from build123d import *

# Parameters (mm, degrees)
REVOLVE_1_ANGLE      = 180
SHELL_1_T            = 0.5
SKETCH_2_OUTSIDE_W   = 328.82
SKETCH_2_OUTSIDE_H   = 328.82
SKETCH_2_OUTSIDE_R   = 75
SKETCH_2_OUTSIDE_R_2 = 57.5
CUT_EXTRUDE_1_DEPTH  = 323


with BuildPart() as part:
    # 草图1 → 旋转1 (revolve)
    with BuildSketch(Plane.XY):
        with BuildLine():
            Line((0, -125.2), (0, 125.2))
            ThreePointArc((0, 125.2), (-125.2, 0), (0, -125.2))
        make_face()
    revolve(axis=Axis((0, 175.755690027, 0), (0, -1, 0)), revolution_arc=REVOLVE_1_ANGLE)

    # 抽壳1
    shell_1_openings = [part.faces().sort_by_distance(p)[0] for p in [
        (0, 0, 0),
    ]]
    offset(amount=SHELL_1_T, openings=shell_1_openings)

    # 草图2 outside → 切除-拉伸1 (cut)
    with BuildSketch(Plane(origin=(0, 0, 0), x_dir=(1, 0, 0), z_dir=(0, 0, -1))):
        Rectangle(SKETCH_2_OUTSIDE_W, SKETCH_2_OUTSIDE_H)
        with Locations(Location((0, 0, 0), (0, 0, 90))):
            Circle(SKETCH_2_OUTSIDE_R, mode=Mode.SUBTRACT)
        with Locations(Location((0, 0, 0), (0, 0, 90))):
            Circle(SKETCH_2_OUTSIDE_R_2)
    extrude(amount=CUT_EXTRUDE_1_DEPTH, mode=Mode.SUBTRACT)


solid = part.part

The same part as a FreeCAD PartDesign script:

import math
import FreeCAD as App
import Part
import Sketcher
from FreeCAD import Vector


def faces_at(feature, points):
    """Names of the faces that lie closest to the given points."""
    faces = feature.Shape.Faces
    near = lambda p: min(range(len(faces)), key=lambda i: faces[i].distToShape(Part.Vertex(*p))[0])
    return sorted({f"Face{near(p) + 1}" for p in points})

doc = App.newDocument("Part")
body = doc.addObject("PartDesign::Body", "Body")

# Sketch on XY plane
sketch1 = body.newObject("Sketcher::SketchObject", "Sketch")
sketch1.AttachmentSupport = (doc.getObject("XY_Plane"), [""])
sketch1.MapMode = "FlatFace"
sketch1.addGeometry([
    Part.LineSegment(Vector(0, -125, 0), Vector(0, 125, 0)),
    Part.ArcOfCircle(Part.Circle(Vector(0, 0, 0), Vector(0, 0, 1), 125), math.radians(90), math.radians(270)),
], False)
sketch1.addConstraint([
    Sketcher.Constraint("Coincident", 0, 1, 1, 2),
    Sketcher.Constraint("Coincident", 1, 1, 0, 2),
    Sketcher.Constraint("Vertical", 0),
    Sketcher.Constraint("Coincident", 1, 3, -1, 1),
    Sketcher.Constraint("PointOnObject", 0, 1, -2),
    Sketcher.Constraint("Radius", 1, 125.2),
])
revolution = body.newObject("PartDesign::Revolution", "Revolution")
revolution.Profile = sketch1
revolution.ReferenceAxis = (sketch1, ["V_Axis"])
revolution.Angle = 180
revolution.Reversed = True
doc.recompute()

thickness = body.newObject("PartDesign::Thickness", "Thickness")
thickness.Base = (revolution, faces_at(revolution, [(0, 0, 0)]))
thickness.Value = 0.5
thickness.Reversed = False
thickness.Join = "Arc"

# Sketch on XY plane
sketch2 = body.newObject("Sketcher::SketchObject", "Sketch001")
sketch2.AttachmentSupport = (doc.getObject("XY_Plane"), [""])
sketch2.MapMode = "FlatFace"
sketch2.addGeometry([
    Part.LineSegment(Vector(-164, -164, 0), Vector(-164, 164, 0)),  # 0
    Part.LineSegment(Vector(-164, 164, 0), Vector(164, 164, 0)),  # 1
    Part.LineSegment(Vector(164, 164, 0), Vector(164, -164, 0)),  # 2
    Part.LineSegment(Vector(164, -164, 0), Vector(-164, -164, 0)),  # 3
    Part.Circle(Vector(0, 0, 0), Vector(0, 0, 1), 75),  # 4
    Part.Circle(Vector(0, 0, 0), Vector(0, 0, 1), 58),  # 5
], False)
sketch2.addConstraint([
    Sketcher.Constraint("Coincident", 0, 2, 1, 1),
    Sketcher.Constraint("Coincident", 1, 2, 2, 1),
    Sketcher.Constraint("Coincident", 2, 2, 3, 1),
    Sketcher.Constraint("Coincident", 3, 2, 0, 1),
    Sketcher.Constraint("Vertical", 0),
    Sketcher.Constraint("Horizontal", 1),
    Sketcher.Constraint("Vertical", 2),
    Sketcher.Constraint("Horizontal", 3),
    Sketcher.Constraint("Coincident", 4, 3, -1, 1),
    Sketcher.Constraint("Coincident", 5, 3, -1, 1),
    Sketcher.Constraint("Symmetric", 0, 2, 2, 2, -1, 1),
    Sketcher.Constraint("Equal", 3, 0),
    Sketcher.Constraint("Diameter", 4, 150.0),
    Sketcher.Constraint("Diameter", 5, 115.0),
    Sketcher.Constraint("DistanceX", 1, 1, 1, 2, 328.82),
])
pocket1 = body.newObject("PartDesign::Pocket", "Pocket")
pocket1.Profile = sketch2
pocket1.Length = 323

doc.recompute()
